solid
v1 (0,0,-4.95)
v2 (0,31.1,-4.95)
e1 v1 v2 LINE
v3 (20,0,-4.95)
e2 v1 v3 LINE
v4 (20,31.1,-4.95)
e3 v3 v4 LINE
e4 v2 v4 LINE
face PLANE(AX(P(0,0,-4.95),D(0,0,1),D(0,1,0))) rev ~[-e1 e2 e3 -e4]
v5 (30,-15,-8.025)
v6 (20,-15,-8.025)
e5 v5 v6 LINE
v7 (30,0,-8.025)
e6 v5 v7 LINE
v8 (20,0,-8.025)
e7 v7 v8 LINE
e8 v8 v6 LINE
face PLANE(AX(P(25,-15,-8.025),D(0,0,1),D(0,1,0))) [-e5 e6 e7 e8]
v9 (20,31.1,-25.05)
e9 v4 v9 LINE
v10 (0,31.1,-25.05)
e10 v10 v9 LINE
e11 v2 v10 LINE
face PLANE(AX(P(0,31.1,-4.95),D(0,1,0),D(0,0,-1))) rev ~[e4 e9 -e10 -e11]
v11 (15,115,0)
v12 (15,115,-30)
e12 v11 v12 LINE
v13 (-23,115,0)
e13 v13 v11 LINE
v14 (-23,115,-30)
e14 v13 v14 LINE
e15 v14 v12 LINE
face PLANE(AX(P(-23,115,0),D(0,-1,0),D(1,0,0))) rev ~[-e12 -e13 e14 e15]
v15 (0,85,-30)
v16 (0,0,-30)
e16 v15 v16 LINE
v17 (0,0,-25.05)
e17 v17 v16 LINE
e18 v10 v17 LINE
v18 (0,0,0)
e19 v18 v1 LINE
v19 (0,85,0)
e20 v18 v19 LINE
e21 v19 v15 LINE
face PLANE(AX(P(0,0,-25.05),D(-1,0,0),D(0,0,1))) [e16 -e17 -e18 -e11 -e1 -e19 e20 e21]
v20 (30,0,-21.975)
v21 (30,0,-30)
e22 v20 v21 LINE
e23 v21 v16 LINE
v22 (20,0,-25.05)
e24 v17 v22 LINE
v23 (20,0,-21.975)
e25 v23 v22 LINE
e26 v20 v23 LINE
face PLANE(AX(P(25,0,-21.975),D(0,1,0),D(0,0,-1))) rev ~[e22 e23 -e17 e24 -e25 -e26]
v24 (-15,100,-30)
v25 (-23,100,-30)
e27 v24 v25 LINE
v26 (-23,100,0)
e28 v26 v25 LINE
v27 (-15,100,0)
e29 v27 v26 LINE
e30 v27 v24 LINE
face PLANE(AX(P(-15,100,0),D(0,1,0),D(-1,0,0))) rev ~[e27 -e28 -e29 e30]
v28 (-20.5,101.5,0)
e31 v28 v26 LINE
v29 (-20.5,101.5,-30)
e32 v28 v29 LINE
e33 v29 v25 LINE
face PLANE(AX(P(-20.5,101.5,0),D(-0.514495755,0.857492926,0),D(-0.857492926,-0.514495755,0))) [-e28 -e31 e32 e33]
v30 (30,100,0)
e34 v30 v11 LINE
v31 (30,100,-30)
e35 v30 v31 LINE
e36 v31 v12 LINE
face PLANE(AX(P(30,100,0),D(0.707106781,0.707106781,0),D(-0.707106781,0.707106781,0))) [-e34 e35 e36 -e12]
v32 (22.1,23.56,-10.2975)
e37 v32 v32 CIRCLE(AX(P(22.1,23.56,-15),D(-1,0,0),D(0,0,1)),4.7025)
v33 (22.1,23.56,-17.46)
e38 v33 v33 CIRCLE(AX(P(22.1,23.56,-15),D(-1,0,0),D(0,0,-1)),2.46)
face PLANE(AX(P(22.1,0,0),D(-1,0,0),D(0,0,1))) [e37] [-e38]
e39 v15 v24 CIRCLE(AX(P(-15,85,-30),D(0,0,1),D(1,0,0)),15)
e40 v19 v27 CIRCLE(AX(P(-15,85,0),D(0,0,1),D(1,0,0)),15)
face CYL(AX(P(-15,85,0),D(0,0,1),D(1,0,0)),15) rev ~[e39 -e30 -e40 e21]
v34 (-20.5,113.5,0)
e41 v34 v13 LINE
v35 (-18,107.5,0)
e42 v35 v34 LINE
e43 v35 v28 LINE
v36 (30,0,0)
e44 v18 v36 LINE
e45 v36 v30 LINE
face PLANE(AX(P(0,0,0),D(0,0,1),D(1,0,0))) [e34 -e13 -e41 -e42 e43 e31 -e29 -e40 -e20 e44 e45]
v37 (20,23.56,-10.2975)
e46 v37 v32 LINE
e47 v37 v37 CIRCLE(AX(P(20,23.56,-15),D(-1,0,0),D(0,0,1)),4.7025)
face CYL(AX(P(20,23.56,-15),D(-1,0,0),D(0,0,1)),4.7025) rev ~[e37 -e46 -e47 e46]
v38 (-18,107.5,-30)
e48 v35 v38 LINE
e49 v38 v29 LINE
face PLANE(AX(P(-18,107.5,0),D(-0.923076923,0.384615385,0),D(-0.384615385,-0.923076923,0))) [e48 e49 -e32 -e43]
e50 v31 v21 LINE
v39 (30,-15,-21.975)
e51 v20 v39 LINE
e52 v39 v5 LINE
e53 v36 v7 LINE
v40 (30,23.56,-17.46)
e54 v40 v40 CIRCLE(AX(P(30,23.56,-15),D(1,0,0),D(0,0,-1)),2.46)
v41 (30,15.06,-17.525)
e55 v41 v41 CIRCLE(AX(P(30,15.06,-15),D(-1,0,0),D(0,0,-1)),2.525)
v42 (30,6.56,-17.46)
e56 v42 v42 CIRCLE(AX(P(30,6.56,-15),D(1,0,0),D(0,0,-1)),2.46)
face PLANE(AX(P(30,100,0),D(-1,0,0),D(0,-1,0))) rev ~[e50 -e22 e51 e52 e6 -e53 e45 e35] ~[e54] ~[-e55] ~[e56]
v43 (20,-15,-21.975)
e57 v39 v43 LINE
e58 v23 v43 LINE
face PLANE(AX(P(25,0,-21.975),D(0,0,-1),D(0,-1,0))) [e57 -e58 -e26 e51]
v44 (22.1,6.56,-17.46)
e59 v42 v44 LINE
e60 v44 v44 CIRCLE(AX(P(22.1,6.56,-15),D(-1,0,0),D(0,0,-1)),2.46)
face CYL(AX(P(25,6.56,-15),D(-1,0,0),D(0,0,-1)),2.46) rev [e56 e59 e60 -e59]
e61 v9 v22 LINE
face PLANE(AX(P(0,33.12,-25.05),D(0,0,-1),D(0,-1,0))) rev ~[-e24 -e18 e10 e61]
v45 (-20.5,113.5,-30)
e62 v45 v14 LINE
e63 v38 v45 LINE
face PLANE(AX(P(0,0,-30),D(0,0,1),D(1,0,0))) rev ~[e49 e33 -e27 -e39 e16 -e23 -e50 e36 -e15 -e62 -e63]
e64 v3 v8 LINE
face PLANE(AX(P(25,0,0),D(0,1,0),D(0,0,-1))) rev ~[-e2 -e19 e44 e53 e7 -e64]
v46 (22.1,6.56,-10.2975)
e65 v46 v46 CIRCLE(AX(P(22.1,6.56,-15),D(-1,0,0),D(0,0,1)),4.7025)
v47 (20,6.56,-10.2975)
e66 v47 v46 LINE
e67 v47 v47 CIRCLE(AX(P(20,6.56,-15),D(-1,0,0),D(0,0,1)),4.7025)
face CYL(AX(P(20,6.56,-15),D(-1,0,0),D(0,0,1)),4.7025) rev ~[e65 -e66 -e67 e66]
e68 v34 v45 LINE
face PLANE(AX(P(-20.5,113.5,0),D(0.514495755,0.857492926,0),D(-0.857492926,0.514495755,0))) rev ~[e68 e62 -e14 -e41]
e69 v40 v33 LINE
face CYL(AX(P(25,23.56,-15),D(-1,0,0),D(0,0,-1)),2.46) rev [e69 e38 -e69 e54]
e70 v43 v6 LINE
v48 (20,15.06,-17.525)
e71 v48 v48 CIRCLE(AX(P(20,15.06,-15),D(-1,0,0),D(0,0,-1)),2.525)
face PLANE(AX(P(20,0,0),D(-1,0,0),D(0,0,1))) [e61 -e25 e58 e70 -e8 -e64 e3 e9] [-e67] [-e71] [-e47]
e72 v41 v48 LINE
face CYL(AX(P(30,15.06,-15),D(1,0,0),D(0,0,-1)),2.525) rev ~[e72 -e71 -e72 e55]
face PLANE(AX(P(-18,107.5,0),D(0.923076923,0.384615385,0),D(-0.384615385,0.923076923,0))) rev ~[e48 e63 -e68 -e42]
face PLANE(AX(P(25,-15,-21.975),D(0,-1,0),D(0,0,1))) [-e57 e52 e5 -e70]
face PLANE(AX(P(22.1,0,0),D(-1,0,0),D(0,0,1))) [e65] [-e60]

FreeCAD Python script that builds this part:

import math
import FreeCAD as App
import Part
import Sketcher

V = App.Vector

doc = App.newDocument("Part")
body = doc.addObject("PartDesign::Body", "Body")

# Sketch on XY plane
sketch1 = body.newObject("Sketcher::SketchObject", "Sketch")
sketch1.AttachmentSupport = (doc.getObject("XY_Plane"), [""])
sketch1.MapMode = "FlatFace"
sketch1.addGeometry([
    Part.LineSegment(V(0, 40, 0), V(0, 0, 0)),
    Part.LineSegment(V(0, 0, 0), V(25, 0, 0)),
    Part.LineSegment(V(25, 0, 0), V(25, 40, 0)),
    Part.LineSegment(V(25, 40, 0), V(0, 40, 0)),
], False)
sketch1.addConstraint([
    Sketcher.Constraint("Coincident", 0, 2, 1, 1),
    Sketcher.Constraint("Coincident", 1, 2, 2, 1),
    Sketcher.Constraint("Coincident", 2, 2, 3, 1),
    Sketcher.Constraint("Coincident", 3, 2, 0, 1),
    Sketcher.Constraint("Vertical", 0),
    Sketcher.Constraint("Horizontal", 1),
    Sketcher.Constraint("Vertical", 2),
    Sketcher.Constraint("Horizontal", 3),
    Sketcher.Constraint("Coincident", 0, 2, -1, 1),
    Sketcher.Constraint("DistanceX", 1, 1, 1, 2, 25.0),
    Sketcher.Constraint("DistanceY", 0, 2, 0, 1, 40.0),
])
pad1 = body.newObject("PartDesign::Pad", "Pad")
pad1.Profile = sketch1
pad1.Length = 30
pad1.Reversed = True

# Sketch on YZ plane
sketch2 = body.newObject("Sketcher::SketchObject", "Sketch001")
sketch2.AttachmentSupport = (doc.getObject("YZ_Plane"), [""])
sketch2.MapMode = "FlatFace"
sketch2.AttachmentOffset = App.Placement(V(0, 0, 25), App.Rotation())
sketch2.addGeometry(Part.Circle(V(6.6, -15, 0), V(0, 0, 1), 2.5), False)
sketch2.addConstraint([
    Sketcher.Constraint("Diameter", 0, 4.92),
    Sketcher.Constraint("DistanceY", 0, 3, -1, 1, 15.0),
    Sketcher.Constraint("DistanceX", -1, 1, 0, 3, 6.56),
])
pocket1 = body.newObject("PartDesign::Pocket", "Pocket")
pocket1.Profile = sketch2
pocket1.Length = 30

# Sketch on YZ plane
sketch3 = body.newObject("Sketcher::SketchObject", "Sketch002")
sketch3.AttachmentSupport = (doc.getObject("YZ_Plane"), [""])
sketch3.MapMode = "FlatFace"
sketch3.addGeometry([
    Part.LineSegment(V(0, -25, 0), V(0, -5, 0)),
    Part.LineSegment(V(0, -5, 0), V(33, -5, 0)),
    Part.LineSegment(V(33, -5, 0), V(33, -25, 0)),
    Part.LineSegment(V(33, -25, 0), V(0, -25, 0)),
], False)
sketch3.addConstraint([
    Sketcher.Constraint("Coincident", 0, 2, 1, 1),
    Sketcher.Constraint("Coincident", 1, 2, 2, 1),
    Sketcher.Constraint("Coincident", 2, 2, 3, 1),
    Sketcher.Constraint("Coincident", 3, 2, 0, 1),
    Sketcher.Constraint("Vertical", 0),
    Sketcher.Constraint("Horizontal", 1),
    Sketcher.Constraint("Vertical", 2),
    Sketcher.Constraint("Horizontal", 3),
    Sketcher.Constraint("PointOnObject", 0, 2, -2),
    Sketcher.Constraint("DistanceY", 0, 1, 0, 2, 20.1),
    Sketcher.Constraint("DistanceX", 1, 1, 1, 2, 33.12),
    Sketcher.Constraint("DistanceY", 0, 2, -1, 1, 4.95),
])
pocket2 = body.newObject("PartDesign::Pocket", "Pocket001")
pocket2.Profile = sketch3
pocket2.Length = 20
pocket2.Reversed = True

# Sketch on XZ plane
sketch4 = body.newObject("Sketcher::SketchObject", "Sketch003")
sketch4.AttachmentSupport = (doc.getObject("XZ_Plane"), [""])
sketch4.MapMode = "FlatFace"
sketch4.addGeometry([
    Part.LineSegment(V(25, -8, 0), V(20, -8, 0)),
    Part.LineSegment(V(20, -8, 0), V(20, -22, 0)),
    Part.LineSegment(V(20, -22, 0), V(25, -22, 0)),
    Part.LineSegment(V(25, -22, 0), V(25, -8, 0)),
], False)
sketch4.addConstraint([
    Sketcher.Constraint("Coincident", 0, 2, 1, 1),
    Sketcher.Constraint("Coincident", 1, 2, 2, 1),
    Sketcher.Constraint("Coincident", 2, 2, 3, 1),
    Sketcher.Constraint("Coincident", 3, 2, 0, 1),
    Sketcher.Constraint("Horizontal", 0),
    Sketcher.Constraint("Vertical", 1),
    Sketcher.Constraint("Horizontal", 2),
    Sketcher.Constraint("Vertical", 3),
    Sketcher.Constraint("DistanceY", 1, 2, 1, 1, 13.95),
    Sketcher.Constraint("DistanceX", 0, 2, 0, 1, 5.0),
    Sketcher.Constraint("DistanceX", -1, 1, 0, 2, 20.0),
    Sketcher.Constraint("DistanceY", 0, 2, -1, 1, 8.025),
])
pad2 = body.newObject("PartDesign::Pad", "Pad001")
pad2.Profile = sketch4
pad2.Length = 15

# Sketch on YZ plane
sketch5 = body.newObject("Sketcher::SketchObject", "Sketch004")
sketch5.AttachmentSupport = (doc.getObject("YZ_Plane"), [""])
sketch5.MapMode = "FlatFace"
sketch5.AttachmentOffset = App.Placement(V(0, 0, 20), App.Rotation())
sketch5.addGeometry([
    Part.Circle(V(6.6, -15, 0), V(0, 0, 1), 4.7),
    Part.Circle(V(6.6, -15, 0), V(0, 0, 1), 2.5),
], False)
sketch5.addConstraint([
    Sketcher.Constraint("Coincident", 1, 3, 0, 3),
    Sketcher.Constraint("Diameter", 0, 9.405),
    Sketcher.Constraint("Diameter", 1, 4.92),
    Sketcher.Constraint("DistanceY", 0, 3, -1, 1, 15.0),
    Sketcher.Constraint("DistanceX", -1, 1, 0, 3, 6.56),
])
pocket3 = body.newObject("PartDesign::Pocket", "Pocket002")
pocket3.Profile = sketch5
pocket3.Length = 2.1
pocket3.Reversed = True

# Sketch on YZ plane
sketch6 = body.newObject("Sketcher::SketchObject", "Sketch005")
sketch6.AttachmentSupport = (doc.getObject("YZ_Plane"), [""])
sketch6.MapMode = "FlatFace"
sketch6.AttachmentOffset = App.Placement(V(0, 0, 25), App.Rotation())
sketch6.addGeometry(Part.Circle(V(23.6, -15, 0), V(0, 0, 1), 2.5), False)
sketch6.addConstraint([
    Sketcher.Constraint("Diameter", 0, 4.92),
    Sketcher.Constraint("DistanceY", 0, 3, -1, 1, 15.0),
    Sketcher.Constraint("DistanceX", -1, 1, 0, 3, 23.56),
])
pocket4 = body.newObject("PartDesign::Pocket", "Pocket003")
pocket4.Profile = sketch6
pocket4.Length = 10

# Sketch on YZ plane
sketch7 = body.newObject("Sketcher::SketchObject", "Sketch006")
sketch7.AttachmentSupport = (doc.getObject("YZ_Plane"), [""])
sketch7.MapMode = "FlatFace"
sketch7.AttachmentOffset = App.Placement(V(0, 0, 20), App.Rotation())
sketch7.addGeometry([
    Part.Circle(V(23.6, -15, 0), V(0, 0, 1), 4.7),
    Part.Circle(V(23.6, -15, 0), V(0, 0, 1), 2.5),
], False)
sketch7.addConstraint([
    Sketcher.Constraint("Coincident", 1, 3, 0, 3),
    Sketcher.Constraint("Diameter", 0, 9.405),
    Sketcher.Constraint("Diameter", 1, 4.92),
    Sketcher.Constraint("DistanceY", 0, 3, -1, 1, 15.0),
    Sketcher.Constraint("DistanceX", -1, 1, 0, 3, 23.56),
])
pocket5 = body.newObject("PartDesign::Pocket", "Pocket004")
pocket5.Profile = sketch7
pocket5.Length = 2.1
pocket5.Reversed = True

# Sketch on YZ plane
sketch8 = body.newObject("Sketcher::SketchObject", "Sketch007")
sketch8.AttachmentSupport = (doc.getObject("YZ_Plane"), [""])
sketch8.MapMode = "FlatFace"
sketch8.AttachmentOffset = App.Placement(V(0, 0, 25), App.Rotation())
sketch8.addGeometry([
    Part.LineSegment(V(0, -30, 0), V(40, -30, 0)),  # 0
    Part.LineSegment(V(40, -30, 0), V(40, 0, 0)),  # 1
    Part.LineSegment(V(40, 0, 0), V(0, 0, 0)),  # 2
    Part.LineSegment(V(0, 0, 0), V(0, -8, 0)),  # 3
    Part.LineSegment(V(0, -8, 0), V(-15, -8, 0)),  # 4
    Part.LineSegment(V(-15, -8, 0), V(-15, -22, 0)),  # 5
    Part.LineSegment(V(-15, -22, 0), V(0, -22, 0)),  # 6
    Part.LineSegment(V(0, -22, 0), V(0, -30, 0)),  # 7
    Part.Circle(V(6.6, -15, 0), V(0, 0, 1), 2.5),  # 8
    Part.Circle(V(23.6, -15, 0), V(0, 0, 1), 2.5),  # 9
], False)
sketch8.addConstraint([
    Sketcher.Constraint("Coincident", 0, 2, 1, 1),
    Sketcher.Constraint("Coincident", 1, 2, 2, 1),
    Sketcher.Constraint("Coincident", 2, 2, 3, 1),
    Sketcher.Constraint("Coincident", 3, 2, 4, 1),
    Sketcher.Constraint("Coincident", 4, 2, 5, 1),
    Sketcher.Constraint("Coincident", 5, 2, 6, 1),
    Sketcher.Constraint("Coincident", 6, 2, 7, 1),
    Sketcher.Constraint("Coincident", 7, 2, 0, 1),
    Sketcher.Constraint("Horizontal", 0),
    Sketcher.Constraint("Vertical", 1),
    Sketcher.Constraint("Horizontal", 2),
    Sketcher.Constraint("Vertical", 3),
    Sketcher.Constraint("Horizontal", 4),
    Sketcher.Constraint("Vertical", 5),
    Sketcher.Constraint("Horizontal", 6),
    Sketcher.Constraint("Vertical", 7),
    Sketcher.Constraint("Coincident", 2, 2, -1, 1),
    Sketcher.Constraint("Equal", 8, 9),
    Sketcher.Constraint("PointOnObject", 6, 2, -2),
    Sketcher.Constraint("Horizontal", 8, 3, 9, 3),
    Sketcher.Constraint("Equal", 3, 7),
    Sketcher.Constraint("Diameter", 8, 4.92),
    Sketcher.Constraint("DistanceX", 0, 1, 0, 2, 40.0),
    Sketcher.Constraint("DistanceX", 4, 2, 4, 1, 15.0),
    Sketcher.Constraint("DistanceY", 1, 1, 1, 2, 30.0),
    Sketcher.Constraint("DistanceY", 8, 3, -1, 1, 15.0),
    Sketcher.Constraint("DistanceX", 8, 3, 9, 3, 17.0),
    Sketcher.Constraint("DistanceY", 5, 2, 5, 1, 13.95),
    Sketcher.Constraint("DistanceX", -1, 1, 8, 3, 6.56),
])
pad3 = body.newObject("PartDesign::Pad", "Pad002")
pad3.Profile = sketch8
pad3.Length = 5

# Sketch on XZ plane
sketch9 = body.newObject("Sketcher::SketchObject", "Sketch008")
sketch9.AttachmentSupport = (doc.getObject("XZ_Plane"), [""])
sketch9.MapMode = "FlatFace"
sketch9.AttachmentOffset = App.Placement(V(0, 0, -40), App.Rotation())
sketch9.addGeometry([
    Part.LineSegment(V(30, -30, 0), V(0, -30, 0)),
    Part.LineSegment(V(0, -30, 0), V(0, 0, 0)),
    Part.LineSegment(V(0, 0, 0), V(30, 0, 0)),
    Part.LineSegment(V(30, 0, 0), V(30, -30, 0)),
], False)
sketch9.addConstraint([
    Sketcher.Constraint("Coincident", 0, 2, 1, 1),
    Sketcher.Constraint("Coincident", 1, 2, 2, 1),
    Sketcher.Constraint("Coincident", 2, 2, 3, 1),
    Sketcher.Constraint("Coincident", 3, 2, 0, 1),
    Sketcher.Constraint("Horizontal", 0),
    Sketcher.Constraint("Vertical", 1),
    Sketcher.Constraint("Horizontal", 2),
    Sketcher.Constraint("Vertical", 3),
    Sketcher.Constraint("Coincident", 1, 2, -1, 1),
    Sketcher.Constraint("Equal", 2, 1),
    Sketcher.Constraint("DistanceX", 0, 2, 0, 1, 30.0),
])
pad4 = body.newObject("PartDesign::Pad", "Pad003")
pad4.Profile = sketch9
pad4.Length = 30
pad4.Reversed = True

# Sketch on YZ plane
sketch10 = body.newObject("Sketcher::SketchObject", "Sketch009")
sketch10.AttachmentSupport = (doc.getObject("YZ_Plane"), [""])
sketch10.MapMode = "FlatFace"
sketch10.AttachmentOffset = App.Placement(V(0, 0, 30), App.Rotation())
sketch10.addGeometry(Part.Circle(V(15.1, -15, 0), V(0, 0, 1), 2.5), False)
sketch10.addConstraint([
    Sketcher.Constraint("Diameter", 0, 5.05),
    Sketcher.Constraint("DistanceY", 0, 3, -1, 1, 15.0),
    Sketcher.Constraint("DistanceX", -1, 1, 0, 3, 15.06),
])
pocket6 = body.newObject("PartDesign::Pocket", "Pocket005")
pocket6.Profile = sketch10
pocket6.Length = 30

# Sketch on XY plane
sketch11 = body.newObject("Sketcher::SketchObject", "Sketch010")
sketch11.AttachmentSupport = (doc.getObject("XY_Plane"), [""])
sketch11.MapMode = "FlatFace"
sketch11.addGeometry([
    Part.LineSegment(V(0, 70, 0), V(30, 70, 0)),  # 0
    Part.LineSegment(V(30, 70, 0), V(30, 100, 0)),  # 1
    Part.LineSegment(V(30, 100, 0), V(15, 115, 0)),  # 2
    Part.LineSegment(V(15, 115, 0), V(-23, 115, 0)),  # 3
    Part.LineSegment(V(-23, 115, 0), V(-20.5, 113.5, 0)),  # 4
    Part.LineSegment(V(-20.5, 113.5, 0), V(-18, 107.5, 0)),  # 5
    Part.LineSegment(V(-18, 107.5, 0), V(-20.5, 101.5, 0)),  # 6
    Part.LineSegment(V(-20.5, 101.5, 0), V(-23, 100, 0)),  # 7
    Part.LineSegment(V(-23, 100, 0), V(-15, 100, 0)),  # 8
    Part.ArcOfCircle(Part.Circle(V(-15, 85, 0), V(0, 0, 1), 15), math.radians(0), math.radians(90)),  # 9
    Part.LineSegment(V(0, 85, 0), V(0, 70, 0)),  # 10
], False)
sketch11.addConstraint([
    Sketcher.Constraint("Coincident", 0, 2, 1, 1),
    Sketcher.Constraint("Coincident", 1, 2, 2, 1),
    Sketcher.Constraint("Coincident", 2, 2, 3, 1),
    Sketcher.Constraint("Coincident", 3, 2, 4, 1),
    Sketcher.Constraint("Coincident", 4, 2, 5, 1),
    Sketcher.Constraint("Coincident", 5, 2, 6, 1),
    Sketcher.Constraint("Coincident", 6, 2, 7, 1),
    Sketcher.Constraint("Coincident", 7, 2, 8, 1),
    Sketcher.Constraint("Tangent", 8, 2, 9, 2),
    Sketcher.Constraint("Tangent", 9, 1, 10, 1),
    Sketcher.Constraint("Coincident", 10, 2, 0, 1),
    Sketcher.Constraint("Horizontal", 0),
    Sketcher.Constraint("Vertical", 1),
    Sketcher.Constraint("Horizontal", 3),
    Sketcher.Constraint("Horizontal", 8),
    Sketcher.Constraint("Vertical", 10),
    Sketcher.Constraint("PointOnObject", 9, 1, -2),
    Sketcher.Constraint("Horizontal", 1, 2, 7, 2),
    Sketcher.Constraint("Vertical", 4, 2, 6, 2),
    Sketcher.Constraint("Vertical", 3, 2, 7, 2),
    Sketcher.Constraint("Equal", 0, 1),
    Sketcher.Constraint("Equal", 5, 6),
    Sketcher.Constraint("Equal", 4, 7),
    Sketcher.Constraint("Radius", 9, 15.0),
    Sketcher.Constraint("DistanceX", 0, 1, 0, 2, 30.0),
    Sketcher.Constraint("DistanceX", -1, 1, 2, 2, 15.0),
    Sketcher.Constraint("DistanceY", 1, 2, 2, 2, 15.0),
    Sketcher.Constraint("DistanceX", 3, 2, 3, 1, 38.0),
    Sketcher.Constraint("DistanceY", -1, 1, 9, 3, 85.0),
    Sketcher.Constraint("DistanceX", 5, 2, -1, 1, 18.0),
    Sketcher.Constraint("DistanceY", 5, 2, 4, 2, 6.0),
    Sketcher.Constraint("Distance", 5, 6.5),
])
pad5 = body.newObject("PartDesign::Pad", "Pad004")
pad5.Profile = sketch11
pad5.Length = 30
pad5.Reversed = True

# Sketch on YZ plane
sketch12 = body.newObject("Sketcher::SketchObject", "Sketch011")
sketch12.AttachmentSupport = (doc.getObject("YZ_Plane"), [""])
sketch12.MapMode = "FlatFace"
sketch12.addGeometry([
    Part.LineSegment(V(33.1, -5, 0), V(33.1, -25.1, 0)),
    Part.LineSegment(V(33.1, -25.1, 0), V(31.1, -25.1, 0)),
    Part.LineSegment(V(31.1, -25.1, 0), V(31.1, -5, 0)),
    Part.LineSegment(V(31.1, -5, 0), V(33.1, -5, 0)),
], False)
sketch12.addConstraint([
    Sketcher.Constraint("Coincident", 0, 2, 1, 1),
    Sketcher.Constraint("Coincident", 1, 2, 2, 1),
    Sketcher.Constraint("Coincident", 2, 2, 3, 1),
    Sketcher.Constraint("Coincident", 3, 2, 0, 1),
    Sketcher.Constraint("Vertical", 0),
    Sketcher.Constraint("Horizontal", 1),
    Sketcher.Constraint("Vertical", 2),
    Sketcher.Constraint("Horizontal", 3),
    Sketcher.Constraint("DistanceX", 1, 2, 1, 1, 2.02),
    Sketcher.Constraint("DistanceY", 0, 2, 0, 1, 20.1),
    Sketcher.Constraint("DistanceX", -1, 1, 1, 2, 31.1),
    Sketcher.Constraint("DistanceY", 0, 2, -1, 1, 25.05),
])
pad6 = body.newObject("PartDesign::Pad", "Pad005")
pad6.Profile = sketch12
pad6.Length = 20

doc.recompute()
